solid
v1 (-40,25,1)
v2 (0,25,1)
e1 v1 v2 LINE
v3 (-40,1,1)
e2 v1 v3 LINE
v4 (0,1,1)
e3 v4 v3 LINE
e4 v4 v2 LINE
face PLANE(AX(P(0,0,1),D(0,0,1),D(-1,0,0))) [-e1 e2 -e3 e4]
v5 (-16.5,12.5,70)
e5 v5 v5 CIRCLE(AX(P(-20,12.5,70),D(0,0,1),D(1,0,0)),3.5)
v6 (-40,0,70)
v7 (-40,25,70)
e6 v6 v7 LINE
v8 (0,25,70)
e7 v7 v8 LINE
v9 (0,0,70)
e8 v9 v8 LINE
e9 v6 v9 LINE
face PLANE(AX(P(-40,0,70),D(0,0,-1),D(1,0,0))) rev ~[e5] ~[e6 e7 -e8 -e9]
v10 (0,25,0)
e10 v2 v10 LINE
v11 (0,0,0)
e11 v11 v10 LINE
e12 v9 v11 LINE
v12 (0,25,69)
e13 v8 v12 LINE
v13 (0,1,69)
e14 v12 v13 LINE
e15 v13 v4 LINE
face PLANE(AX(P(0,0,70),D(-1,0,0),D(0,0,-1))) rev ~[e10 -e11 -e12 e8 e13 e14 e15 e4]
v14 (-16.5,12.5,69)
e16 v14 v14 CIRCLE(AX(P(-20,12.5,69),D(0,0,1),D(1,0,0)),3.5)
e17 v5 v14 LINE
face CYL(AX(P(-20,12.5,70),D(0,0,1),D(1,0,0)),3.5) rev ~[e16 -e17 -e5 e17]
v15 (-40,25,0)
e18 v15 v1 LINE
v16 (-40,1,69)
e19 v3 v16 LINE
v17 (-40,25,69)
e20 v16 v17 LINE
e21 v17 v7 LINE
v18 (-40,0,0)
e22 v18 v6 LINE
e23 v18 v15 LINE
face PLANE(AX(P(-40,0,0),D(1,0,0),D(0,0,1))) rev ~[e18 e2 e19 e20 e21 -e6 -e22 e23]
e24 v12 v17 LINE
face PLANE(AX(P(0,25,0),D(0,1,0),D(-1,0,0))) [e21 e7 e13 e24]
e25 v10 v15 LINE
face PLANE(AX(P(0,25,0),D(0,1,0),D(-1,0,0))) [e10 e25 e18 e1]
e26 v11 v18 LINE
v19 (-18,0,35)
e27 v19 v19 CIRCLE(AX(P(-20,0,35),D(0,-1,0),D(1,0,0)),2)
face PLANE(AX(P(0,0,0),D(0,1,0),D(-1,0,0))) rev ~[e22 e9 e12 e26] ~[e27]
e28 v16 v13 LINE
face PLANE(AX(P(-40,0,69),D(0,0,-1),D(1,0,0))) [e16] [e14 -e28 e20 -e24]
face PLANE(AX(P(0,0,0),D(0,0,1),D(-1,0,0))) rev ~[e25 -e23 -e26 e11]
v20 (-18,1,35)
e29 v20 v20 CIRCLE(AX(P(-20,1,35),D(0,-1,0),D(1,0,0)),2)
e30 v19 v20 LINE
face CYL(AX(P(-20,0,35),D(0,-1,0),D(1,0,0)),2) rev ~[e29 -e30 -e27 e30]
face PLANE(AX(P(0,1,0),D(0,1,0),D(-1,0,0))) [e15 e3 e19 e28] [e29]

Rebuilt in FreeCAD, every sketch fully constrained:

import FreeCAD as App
import Part
import Sketcher
from FreeCAD import Vector


def faces_at(feature, points):
    """Names of the faces that lie closest to the given points."""
    faces = feature.Shape.Faces
    near = lambda p: min(range(len(faces)), key=lambda i: faces[i].distToShape(Part.Vertex(*p))[0])
    return sorted({f"Face{near(p) + 1}" for p in points})

doc = App.newDocument("Part")
body = doc.addObject("PartDesign::Body", "Body")

# Sketch on XZ plane
sketch1 = body.newObject("Sketcher::SketchObject", "Sketch")
sketch1.AttachmentSupport = (doc.getObject("XZ_Plane"), [""])
sketch1.MapMode = "FlatFace"
sketch1.addGeometry([
    Part.LineSegment(Vector(0, 70, 0), Vector(0, 0, 0)),
    Part.LineSegment(Vector(0, 0, 0), Vector(-40, 0, 0)),
    Part.LineSegment(Vector(-40, 0, 0), Vector(-40, 70, 0)),
    Part.LineSegment(Vector(-40, 70, 0), Vector(0, 70, 0)),
], False)
sketch1.addConstraint([
    Sketcher.Constraint("Coincident", 0, 2, 1, 1),
    Sketcher.Constraint("Coincident", 1, 2, 2, 1),
    Sketcher.Constraint("Coincident", 2, 2, 3, 1),
    Sketcher.Constraint("Coincident", 3, 2, 0, 1),
    Sketcher.Constraint("Vertical", 0),
    Sketcher.Constraint("Horizontal", 1),
    Sketcher.Constraint("Vertical", 2),
    Sketcher.Constraint("Horizontal", 3),
    Sketcher.Constraint("Coincident", 0, 2, -1, 1),
    Sketcher.Constraint("DistanceX", 1, 2, 1, 1, 40.0),
    Sketcher.Constraint("DistanceY", 0, 2, 0, 1, 70.0),
])
pad1 = body.newObject("PartDesign::Pad", "Pad")
pad1.Profile = sketch1
pad1.Length = 25
pad1.Reversed = True
doc.recompute()

thickness = body.newObject("PartDesign::Thickness", "Thickness")
thickness.Base = (pad1, faces_at(pad1, [(0, 8.333, 46.667), (-40, 8.333, 23.333), (-26.667, 25, 23.333)]))
thickness.Value = 1
thickness.Reversed = True
thickness.Join = "Intersection"

# Sketch on XY plane
sketch2 = body.newObject("Sketcher::SketchObject", "Sketch001")
sketch2.AttachmentSupport = (doc.getObject("XY_Plane"), [""])
sketch2.MapMode = "FlatFace"
sketch2.AttachmentOffset = App.Placement(Vector(0, 0, 70), App.Rotation())
sketch2.addGeometry(Part.Circle(Vector(-20, 12.5, 0), Vector(0, 0, 1), 3.5), False)
sketch2.addConstraint([
    Sketcher.Constraint("Diameter", 0, 7.0),
    Sketcher.Constraint("DistanceX", 0, 3, -1, 1, 20.0),
    Sketcher.Constraint("DistanceY", -1, 1, 0, 3, 12.5),
])
pocket1 = body.newObject("PartDesign::Pocket", "Pocket")
pocket1.Profile = sketch2
pocket1.Length = 1

# Sketch on XZ plane
sketch3 = body.newObject("Sketcher::SketchObject", "Sketch002")
sketch3.AttachmentSupport = (doc.getObject("XZ_Plane"), [""])
sketch3.MapMode = "FlatFace"
sketch3.addGeometry(Part.Circle(Vector(-20, 35, 0), Vector(0, 0, 1), 2), False)
sketch3.addConstraint([
    Sketcher.Constraint("Diameter", 0, 4.0),
    Sketcher.Constraint("DistanceX", 0, 3, -1, 1, 20.0),
    Sketcher.Constraint("DistanceY", -1, 1, 0, 3, 35.0),
])
pocket2 = body.newObject("PartDesign::Pocket", "Pocket001")
pocket2.Profile = sketch3
pocket2.Length = 1

doc.recompute()
